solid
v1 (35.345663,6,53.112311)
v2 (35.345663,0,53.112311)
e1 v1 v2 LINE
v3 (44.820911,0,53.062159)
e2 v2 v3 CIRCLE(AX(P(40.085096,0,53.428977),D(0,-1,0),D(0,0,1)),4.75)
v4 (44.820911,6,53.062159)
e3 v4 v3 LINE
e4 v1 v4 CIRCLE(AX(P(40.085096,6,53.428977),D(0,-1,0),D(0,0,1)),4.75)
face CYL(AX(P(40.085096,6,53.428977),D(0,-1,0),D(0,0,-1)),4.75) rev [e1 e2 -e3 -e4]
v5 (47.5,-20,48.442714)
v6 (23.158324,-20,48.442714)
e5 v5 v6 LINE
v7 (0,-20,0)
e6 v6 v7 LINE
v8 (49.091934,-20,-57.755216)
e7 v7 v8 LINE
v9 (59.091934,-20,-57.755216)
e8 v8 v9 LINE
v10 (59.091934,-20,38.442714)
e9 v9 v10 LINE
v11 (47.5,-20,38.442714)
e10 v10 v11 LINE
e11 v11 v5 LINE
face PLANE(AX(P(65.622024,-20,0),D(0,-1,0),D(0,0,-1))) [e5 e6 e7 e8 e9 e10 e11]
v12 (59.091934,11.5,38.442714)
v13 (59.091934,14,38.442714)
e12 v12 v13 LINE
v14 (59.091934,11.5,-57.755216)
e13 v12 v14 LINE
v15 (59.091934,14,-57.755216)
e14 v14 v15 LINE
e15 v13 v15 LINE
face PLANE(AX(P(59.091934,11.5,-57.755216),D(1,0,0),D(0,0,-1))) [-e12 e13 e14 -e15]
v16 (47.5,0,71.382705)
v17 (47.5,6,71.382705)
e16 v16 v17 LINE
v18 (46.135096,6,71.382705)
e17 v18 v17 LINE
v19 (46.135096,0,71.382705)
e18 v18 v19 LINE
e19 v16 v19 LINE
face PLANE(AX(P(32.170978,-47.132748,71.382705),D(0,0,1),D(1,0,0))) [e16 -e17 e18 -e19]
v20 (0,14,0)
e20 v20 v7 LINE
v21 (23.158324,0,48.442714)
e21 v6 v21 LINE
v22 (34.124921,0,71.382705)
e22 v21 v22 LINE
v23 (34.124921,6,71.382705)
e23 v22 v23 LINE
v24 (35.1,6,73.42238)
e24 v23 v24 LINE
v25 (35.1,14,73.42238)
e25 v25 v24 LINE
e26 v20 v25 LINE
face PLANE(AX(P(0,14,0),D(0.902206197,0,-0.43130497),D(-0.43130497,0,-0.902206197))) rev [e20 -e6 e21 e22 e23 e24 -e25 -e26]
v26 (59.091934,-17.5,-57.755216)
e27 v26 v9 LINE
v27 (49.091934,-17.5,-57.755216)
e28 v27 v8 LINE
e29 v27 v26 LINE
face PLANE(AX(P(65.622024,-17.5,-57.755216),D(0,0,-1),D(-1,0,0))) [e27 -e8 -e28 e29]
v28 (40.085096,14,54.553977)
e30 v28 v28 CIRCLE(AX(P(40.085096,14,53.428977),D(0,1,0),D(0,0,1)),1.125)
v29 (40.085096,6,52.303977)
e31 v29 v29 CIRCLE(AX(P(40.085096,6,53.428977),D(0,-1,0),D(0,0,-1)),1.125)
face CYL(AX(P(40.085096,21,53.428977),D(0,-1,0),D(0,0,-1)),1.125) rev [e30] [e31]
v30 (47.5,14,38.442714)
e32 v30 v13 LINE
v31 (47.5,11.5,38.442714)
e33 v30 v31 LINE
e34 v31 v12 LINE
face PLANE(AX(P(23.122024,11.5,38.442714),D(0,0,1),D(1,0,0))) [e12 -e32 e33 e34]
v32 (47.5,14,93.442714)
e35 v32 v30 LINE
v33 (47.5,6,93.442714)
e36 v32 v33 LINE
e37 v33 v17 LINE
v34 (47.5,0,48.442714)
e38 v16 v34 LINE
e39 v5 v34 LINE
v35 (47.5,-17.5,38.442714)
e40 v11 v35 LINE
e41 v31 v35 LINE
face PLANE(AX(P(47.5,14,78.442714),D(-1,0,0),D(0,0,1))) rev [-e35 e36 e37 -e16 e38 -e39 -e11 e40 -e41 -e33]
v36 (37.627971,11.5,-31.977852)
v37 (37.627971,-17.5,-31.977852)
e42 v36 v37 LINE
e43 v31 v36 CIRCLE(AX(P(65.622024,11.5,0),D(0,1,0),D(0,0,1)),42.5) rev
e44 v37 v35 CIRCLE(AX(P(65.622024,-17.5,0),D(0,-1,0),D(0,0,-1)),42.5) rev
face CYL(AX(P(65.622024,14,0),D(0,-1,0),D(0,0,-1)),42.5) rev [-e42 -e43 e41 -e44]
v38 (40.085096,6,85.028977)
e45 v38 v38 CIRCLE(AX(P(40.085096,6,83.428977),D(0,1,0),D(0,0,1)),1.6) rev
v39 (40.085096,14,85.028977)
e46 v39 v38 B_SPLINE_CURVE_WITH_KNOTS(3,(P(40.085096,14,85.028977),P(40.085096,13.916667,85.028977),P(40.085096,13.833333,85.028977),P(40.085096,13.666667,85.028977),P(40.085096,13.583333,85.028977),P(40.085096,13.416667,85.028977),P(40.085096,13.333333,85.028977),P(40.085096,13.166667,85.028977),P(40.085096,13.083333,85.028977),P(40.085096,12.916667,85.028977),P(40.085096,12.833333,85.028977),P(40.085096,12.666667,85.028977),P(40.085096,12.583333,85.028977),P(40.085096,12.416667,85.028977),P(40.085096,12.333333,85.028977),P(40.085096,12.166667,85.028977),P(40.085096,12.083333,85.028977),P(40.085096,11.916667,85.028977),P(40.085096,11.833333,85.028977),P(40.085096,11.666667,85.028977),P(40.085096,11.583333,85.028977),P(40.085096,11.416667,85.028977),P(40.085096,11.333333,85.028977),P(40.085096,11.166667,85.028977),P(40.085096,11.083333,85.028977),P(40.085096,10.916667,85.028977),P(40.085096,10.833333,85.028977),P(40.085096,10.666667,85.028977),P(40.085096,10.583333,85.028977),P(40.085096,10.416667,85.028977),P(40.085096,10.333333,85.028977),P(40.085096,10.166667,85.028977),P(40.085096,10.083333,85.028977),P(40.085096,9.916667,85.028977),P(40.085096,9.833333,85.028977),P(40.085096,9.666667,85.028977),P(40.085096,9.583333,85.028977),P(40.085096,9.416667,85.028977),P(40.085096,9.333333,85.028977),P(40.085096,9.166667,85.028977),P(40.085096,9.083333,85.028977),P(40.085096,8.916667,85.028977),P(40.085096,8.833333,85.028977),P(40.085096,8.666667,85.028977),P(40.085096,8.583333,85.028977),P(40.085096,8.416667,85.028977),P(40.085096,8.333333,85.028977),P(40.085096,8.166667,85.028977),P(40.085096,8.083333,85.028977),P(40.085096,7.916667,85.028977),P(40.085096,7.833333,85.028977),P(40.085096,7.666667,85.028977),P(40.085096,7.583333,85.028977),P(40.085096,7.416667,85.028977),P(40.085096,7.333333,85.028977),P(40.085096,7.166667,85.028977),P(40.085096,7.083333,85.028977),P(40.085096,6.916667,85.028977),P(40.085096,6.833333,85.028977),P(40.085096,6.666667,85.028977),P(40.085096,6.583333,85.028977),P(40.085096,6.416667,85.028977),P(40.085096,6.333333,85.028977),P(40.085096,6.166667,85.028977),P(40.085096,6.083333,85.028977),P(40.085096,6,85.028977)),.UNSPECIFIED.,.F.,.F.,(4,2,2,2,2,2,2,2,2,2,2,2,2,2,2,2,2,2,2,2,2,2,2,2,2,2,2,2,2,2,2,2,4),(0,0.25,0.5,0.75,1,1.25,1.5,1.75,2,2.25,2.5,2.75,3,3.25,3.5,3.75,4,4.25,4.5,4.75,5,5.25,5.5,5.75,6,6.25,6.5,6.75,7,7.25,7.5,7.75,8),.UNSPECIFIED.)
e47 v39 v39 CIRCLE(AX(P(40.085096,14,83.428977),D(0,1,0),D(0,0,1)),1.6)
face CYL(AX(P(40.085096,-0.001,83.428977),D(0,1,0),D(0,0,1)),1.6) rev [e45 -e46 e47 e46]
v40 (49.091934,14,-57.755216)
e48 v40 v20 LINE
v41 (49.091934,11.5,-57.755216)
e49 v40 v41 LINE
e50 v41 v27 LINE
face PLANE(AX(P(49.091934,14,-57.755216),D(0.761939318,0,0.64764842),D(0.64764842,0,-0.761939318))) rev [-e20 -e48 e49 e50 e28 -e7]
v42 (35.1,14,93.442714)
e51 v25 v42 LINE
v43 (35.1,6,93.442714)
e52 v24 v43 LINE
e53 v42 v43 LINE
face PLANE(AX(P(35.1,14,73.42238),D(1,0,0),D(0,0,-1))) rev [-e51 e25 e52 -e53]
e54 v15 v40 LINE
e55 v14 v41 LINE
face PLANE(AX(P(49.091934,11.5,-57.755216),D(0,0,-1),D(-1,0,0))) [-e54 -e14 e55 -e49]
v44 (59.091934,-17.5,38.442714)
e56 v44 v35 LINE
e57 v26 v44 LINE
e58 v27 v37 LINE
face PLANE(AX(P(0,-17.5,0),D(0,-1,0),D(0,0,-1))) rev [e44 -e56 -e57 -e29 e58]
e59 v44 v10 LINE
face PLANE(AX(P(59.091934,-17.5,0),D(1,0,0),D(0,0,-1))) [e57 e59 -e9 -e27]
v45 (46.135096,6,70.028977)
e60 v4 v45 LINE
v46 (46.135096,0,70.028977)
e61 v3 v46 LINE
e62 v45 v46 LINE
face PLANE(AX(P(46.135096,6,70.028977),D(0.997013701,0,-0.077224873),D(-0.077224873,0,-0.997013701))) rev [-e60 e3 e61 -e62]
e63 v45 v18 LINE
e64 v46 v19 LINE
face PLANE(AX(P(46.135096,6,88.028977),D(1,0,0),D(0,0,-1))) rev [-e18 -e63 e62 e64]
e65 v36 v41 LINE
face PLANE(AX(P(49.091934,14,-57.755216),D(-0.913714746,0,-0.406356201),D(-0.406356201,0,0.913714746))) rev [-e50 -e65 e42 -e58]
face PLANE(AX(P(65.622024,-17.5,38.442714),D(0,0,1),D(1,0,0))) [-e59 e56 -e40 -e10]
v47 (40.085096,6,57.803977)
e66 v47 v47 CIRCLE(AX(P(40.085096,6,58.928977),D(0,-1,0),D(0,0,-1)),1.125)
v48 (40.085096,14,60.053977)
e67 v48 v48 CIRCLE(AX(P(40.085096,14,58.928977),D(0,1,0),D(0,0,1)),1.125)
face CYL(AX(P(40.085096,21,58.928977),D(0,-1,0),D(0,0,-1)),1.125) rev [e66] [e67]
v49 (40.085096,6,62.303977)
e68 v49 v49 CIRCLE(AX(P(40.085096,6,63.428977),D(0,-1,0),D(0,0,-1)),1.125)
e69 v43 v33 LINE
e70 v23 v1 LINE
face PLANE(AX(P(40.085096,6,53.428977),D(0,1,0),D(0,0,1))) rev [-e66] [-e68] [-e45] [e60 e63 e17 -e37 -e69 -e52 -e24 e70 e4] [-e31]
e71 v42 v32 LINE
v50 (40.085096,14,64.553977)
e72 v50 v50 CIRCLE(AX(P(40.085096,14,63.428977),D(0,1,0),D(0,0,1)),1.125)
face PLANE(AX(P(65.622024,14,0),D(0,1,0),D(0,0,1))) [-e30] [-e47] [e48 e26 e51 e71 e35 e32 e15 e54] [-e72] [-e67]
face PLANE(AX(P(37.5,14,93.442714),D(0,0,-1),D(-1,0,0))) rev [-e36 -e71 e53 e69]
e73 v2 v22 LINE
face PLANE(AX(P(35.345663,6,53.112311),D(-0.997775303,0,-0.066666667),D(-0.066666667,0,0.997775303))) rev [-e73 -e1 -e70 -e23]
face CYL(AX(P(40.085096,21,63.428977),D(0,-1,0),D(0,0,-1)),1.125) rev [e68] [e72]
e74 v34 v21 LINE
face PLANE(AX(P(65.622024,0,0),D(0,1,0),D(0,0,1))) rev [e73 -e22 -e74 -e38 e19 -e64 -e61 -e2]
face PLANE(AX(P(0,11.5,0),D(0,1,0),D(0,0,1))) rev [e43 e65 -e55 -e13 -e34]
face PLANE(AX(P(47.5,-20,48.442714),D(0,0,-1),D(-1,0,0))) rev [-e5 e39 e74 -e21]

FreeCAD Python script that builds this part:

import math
import FreeCAD as App
import Part
import Sketcher
from FreeCAD import Vector


def add_polygon(sketch, points):
    """Adds a closed chain of lines whose ends are joined by coincident constraints."""
    first, n = sketch.GeometryCount, len(points)
    for a, b in zip(points, points[1:] + points[:1]):
        sketch.addGeometry(Part.LineSegment(App.Vector(*a, 0), App.Vector(*b, 0)), False)
    for i in range(n):
        sketch.addConstraint(Sketcher.Constraint("Coincident", first + i, 2, first + (i + 1) % n, 1))

doc = App.newDocument("Part")
body = doc.addObject("PartDesign::Body", "Body")

# Sketch on XZ plane
sketch1 = doc.addObject("Sketcher::SketchObject", "Sketch")
body.addObject(sketch1)
sketch1.AttachmentSupport = (doc.XZ_Plane, [""])
sketch1.MapMode = "FlatFace"
sketch1.addGeometry(Part.ArcOfCircle(Part.Circle(Vector(66, 0, 0), Vector(0, 0, 1), 42), math.radians(115), math.radians(229)), False)
sketch1.addGeometry(Part.LineSegment(Vector(38, -32, 0), Vector(49, -58, 0)), False)
sketch1.addGeometry(Part.LineSegment(Vector(49, -58, 0), Vector(0, 0, 0)), False)
sketch1.addGeometry(Part.LineSegment(Vector(0, 0, 0), Vector(35, 73, 0)), False)
sketch1.addGeometry(Part.LineSegment(Vector(35, 73, 0), Vector(35, 93, 0)), False)
sketch1.addGeometry(Part.LineSegment(Vector(35, 93, 0), Vector(48, 93, 0)), False)
sketch1.addGeometry(Part.LineSegment(Vector(48, 93, 0), Vector(48, 38, 0)), False)
sketch1.addConstraint(Sketcher.Constraint("Coincident", 0, 2, 1, 1))
sketch1.addConstraint(Sketcher.Constraint("Coincident", 1, 2, 2, 1))
sketch1.addConstraint(Sketcher.Constraint("Coincident", 2, 2, 3, 1))
sketch1.addConstraint(Sketcher.Constraint("Coincident", 3, 2, 4, 1))
sketch1.addConstraint(Sketcher.Constraint("Coincident", 4, 2, 5, 1))
sketch1.addConstraint(Sketcher.Constraint("Coincident", 5, 2, 6, 1))
sketch1.addConstraint(Sketcher.Constraint("Coincident", 6, 2, 0, 1))
sketch1.addConstraint(Sketcher.Constraint("Vertical", 4))
sketch1.addConstraint(Sketcher.Constraint("Horizontal", 5))
sketch1.addConstraint(Sketcher.Constraint("Vertical", 6))
sketch1.addConstraint(Sketcher.Constraint("Coincident", 2, 2, -1, 1))
sketch1.addConstraint(Sketcher.Constraint("PointOnObject", 0, 3, -1))
sketch1.addConstraint(Sketcher.Constraint("Radius", 0, 42.5))
sketch1.addConstraint(Sketcher.Constraint("DistanceY", 6, 2, 6, 1, 55.0))
sketch1.addConstraint(Sketcher.Constraint("DistanceX", 5, 1, 5, 2, 12.4))
sketch1.addConstraint(Sketcher.Constraint("DistanceX", -1, 1, 3, 2, 35.1))
sketch1.addConstraint(Sketcher.Constraint("Distance", 1, 28.21161))
sketch1.addConstraint(Sketcher.Constraint("Distance", 3, 81.380931))
sketch1.addConstraint(Sketcher.Constraint("DistanceY", 4, 1, 4, 2, 20.020334))
sketch1.addConstraint(Sketcher.Constraint("DistanceX", -1, 1, 0, 2, 37.627971))
sketch1.addConstraint(Sketcher.Constraint("DistanceX", 1, 2, 0, 3, 16.53009))
pad1 = doc.addObject("PartDesign::Pad", "Pad")
body.addObject(pad1)
pad1.Profile = sketch1
pad1.Length = 14
pad1.Reversed = True

# Sketch on XZ plane
sketch2 = doc.addObject("Sketcher::SketchObject", "Sketch001")
body.addObject(sketch2)
sketch2.AttachmentSupport = (doc.XZ_Plane, [""])
sketch2.MapMode = "FlatFace"
sketch2.addGeometry(Part.LineSegment(Vector(36.2, 92.4, 0), Vector(33.3, 84.4, 0)), False)
sketch2.addGeometry(Part.LineSegment(Vector(33.3, 84.4, 0), Vector(35.3, 53.1, 0)), False)
sketch2.addGeometry(Part.ArcOfCircle(Part.Circle(Vector(40.1, 53.4, 0), Vector(0, 0, 1), 4.8), math.radians(-176), math.radians(-4)), False)
sketch2.addGeometry(Part.LineSegment(Vector(44.8, 53.1, 0), Vector(46.1, 70, 0)), False)
sketch2.addGeometry(Part.LineSegment(Vector(46.1, 70, 0), Vector(46.1, 88, 0)), False)
sketch2.addGeometry(Part.LineSegment(Vector(46.1, 88, 0), Vector(44.9, 92.4, 0)), False)
sketch2.addGeometry(Part.LineSegment(Vector(44.9, 92.4, 0), Vector(36.2, 92.4, 0)), False)
sketch2.addGeometry(Part.Circle(Vector(40.1, 83.4, 0), Vector(0, 0, 1), 4.1), False)
sketch2.addConstraint(Sketcher.Constraint("Coincident", 0, 2, 1, 1))
sketch2.addConstraint(Sketcher.Constraint("Tangent", 1, 2, 2, 1))
sketch2.addConstraint(Sketcher.Constraint("Tangent", 2, 2, 3, 1))
sketch2.addConstraint(Sketcher.Constraint("Coincident", 3, 2, 4, 1))
sketch2.addConstraint(Sketcher.Constraint("Coincident", 4, 2, 5, 1))
sketch2.addConstraint(Sketcher.Constraint("Coincident", 5, 2, 6, 1))
sketch2.addConstraint(Sketcher.Constraint("Coincident", 6, 2, 0, 1))
sketch2.addConstraint(Sketcher.Constraint("Vertical", 4))
sketch2.addConstraint(Sketcher.Constraint("Horizontal", 6))
sketch2.addConstraint(Sketcher.Constraint("Vertical", 2, 3, 7, 3))
sketch2.addConstraint(Sketcher.Constraint("Diameter", 7, 8.25))
sketch2.addConstraint(Sketcher.Constraint("DistanceY", 4, 1, 4, 2, 18.0))
sketch2.addConstraint(Sketcher.Constraint("Radius", 2, 4.75))
sketch2.addConstraint(Sketcher.Constraint("DistanceX", 6, 2, 6, 1, 8.7))
sketch2.addConstraint(Sketcher.Constraint("DistanceY", 2, 3, 7, 3, 30.0))
sketch2.addConstraint(Sketcher.Constraint("DistanceY", 7, 3, 5, 2, 9.0))
sketch2.addConstraint(Sketcher.Constraint("DistanceY", 3, 2, 7, 3, 13.4))
sketch2.addConstraint(Sketcher.Constraint("DistanceX", 7, 3, 5, 2, 4.8))
sketch2.addConstraint(Sketcher.Constraint("DistanceX", 7, 3, 3, 2, 6.05))
sketch2.addConstraint(Sketcher.Constraint("DistanceY", 1, 2, 0, 2, 31.290802))
sketch2.addConstraint(Sketcher.Constraint("Distance", 1, 31.36057))
sketch2.addConstraint(Sketcher.Constraint("DistanceX", -1, 1, 0, 2, 33.254959))
sketch2.addConstraint(Sketcher.Constraint("DistanceY", -1, 1, 1, 2, 53.112311))
pocket1 = doc.addObject("PartDesign::Pocket", "Pocket")
body.addObject(pocket1)
pocket1.Profile = sketch2
pocket1.Length = 6

# Sketch on XZ plane
sketch3 = doc.addObject("Sketcher::SketchObject", "Sketch002")
body.addObject(sketch3)
sketch3.AttachmentSupport = (doc.XZ_Plane, [""])
sketch3.MapMode = "FlatFace"
sketch3.AttachmentOffset = App.Placement(Vector(0, 0, -6), App.Rotation())
sketch3.addGeometry(Part.Circle(Vector(40.1, 63.4, 0), Vector(0, 0, 1), 1.1), False)
sketch3.addGeometry(Part.Circle(Vector(40.1, 58.9, 0), Vector(0, 0, 1), 1.1), False)
sketch3.addGeometry(Part.Circle(Vector(40.1, 53.4, 0), Vector(0, 0, 1), 1.1), False)
sketch3.addConstraint(Sketcher.Constraint("Equal", 0, 1))
sketch3.addConstraint(Sketcher.Constraint("Equal", 1, 2))
sketch3.addConstraint(Sketcher.Constraint("Vertical", 0, 3, 1, 3))
sketch3.addConstraint(Sketcher.Constraint("Vertical", 1, 3, 2, 3))
sketch3.addConstraint(Sketcher.Constraint("Diameter", 0, 2.25))
sketch3.addConstraint(Sketcher.Constraint("DistanceY", 2, 3, 0, 3, 10.0))
sketch3.addConstraint(Sketcher.Constraint("DistanceY", 1, 3, 0, 3, 4.5))
sketch3.addConstraint(Sketcher.Constraint("DistanceX", -1, 1, 0, 3, 40.085096))
sketch3.addConstraint(Sketcher.Constraint("DistanceY", -1, 1, 0, 3, 63.428977))
pocket2 = doc.addObject("PartDesign::Pocket", "Pocket001")
body.addObject(pocket2)
pocket2.Profile = sketch3
pocket2.Length = 15

# Sketch on XZ plane
sketch4 = doc.addObject("Sketcher::SketchObject", "Sketch003")
body.addObject(sketch4)
sketch4.AttachmentSupport = (doc.XZ_Plane, [""])
sketch4.MapMode = "FlatFace"
sketch4.AttachmentOffset = App.Placement(Vector(0, 0, -6), App.Rotation())
add_polygon(sketch4, [(32, 71), (58, 71), (58, 110), (31, 110)])  # lines 0-3
sketch4.addConstraint(Sketcher.Constraint("Horizontal", 0))
sketch4.addConstraint(Sketcher.Constraint("Vertical", 1))
sketch4.addConstraint(Sketcher.Constraint("Horizontal", 2))
sketch4.addConstraint(Sketcher.Constraint("DistanceX", 0, 1, 0, 2, 25.68962))
sketch4.addConstraint(Sketcher.Constraint("DistanceX", -1, 1, 0, 2, 57.860599))
sketch4.addConstraint(Sketcher.Constraint("Distance", 3, 38.73435))
sketch4.addConstraint(Sketcher.Constraint("DistanceX", 2, 2, 2, 1, 26.880558))
sketch4.addConstraint(Sketcher.Constraint("DistanceY", -1, 1, 0, 2, 71.382705))
pocket3 = doc.addObject("PartDesign::Pocket", "Pocket002")
body.addObject(pocket3)
pocket3.Profile = sketch4
pocket3.Length = 6
pocket3.Reversed = True

# Sketch on XZ plane
sketch5 = doc.addObject("Sketcher::SketchObject", "Sketch004")
body.addObject(sketch5)
sketch5.AttachmentSupport = (doc.XZ_Plane, [""])
sketch5.MapMode = "FlatFace"
sketch5.AttachmentOffset = App.Placement(Vector(0, 0, -14), App.Rotation())
sketch5.addGeometry(Part.Circle(Vector(40.1, 83.4, 0), Vector(0, 0, 1), 1.6), False)
sketch5.addConstraint(Sketcher.Constraint("Diameter", 0, 3.2))
sketch5.addConstraint(Sketcher.Constraint("DistanceX", -1, 1, 0, 3, 40.085096))
sketch5.addConstraint(Sketcher.Constraint("DistanceY", -1, 1, 0, 3, 83.428977))
pocket4 = doc.addObject("PartDesign::Pocket", "Pocket003")
body.addObject(pocket4)
pocket4.Profile = sketch5
pocket4.Type = "UpToFirst"
pocket4.Reversed = True

# Sketch on XZ plane
sketch6 = doc.addObject("Sketcher::SketchObject", "Sketch005")
body.addObject(sketch6)
sketch6.AttachmentSupport = (doc.XZ_Plane, [""])
sketch6.MapMode = "FlatFace"
sketch6.AttachmentOffset = App.Placement(Vector(0, 0, 20), App.Rotation())
sketch6.addGeometry(Part.LineSegment(Vector(49, -58, 0), Vector(38, -32, 0)), False)
sketch6.addGeometry(Part.ArcOfCircle(Part.Circle(Vector(66, 0, 0), Vector(0, 0, 1), 42), math.radians(115), math.radians(229)), False)
sketch6.addGeometry(Part.LineSegment(Vector(48, 38, 0), Vector(48, 48, 0)), False)
sketch6.addGeometry(Part.LineSegment(Vector(48, 48, 0), Vector(23, 48, 0)), False)
sketch6.addGeometry(Part.LineSegment(Vector(23, 48, 0), Vector(0, 0, 0)), False)
sketch6.addGeometry(Part.LineSegment(Vector(0, 0, 0), Vector(49, -58, 0)), False)
sketch6.addConstraint(Sketcher.Constraint("Coincident", 0, 2, 1, 2))
sketch6.addConstraint(Sketcher.Constraint("Coincident", 1, 1, 2, 1))
sketch6.addConstraint(Sketcher.Constraint("Coincident", 2, 2, 3, 1))
sketch6.addConstraint(Sketcher.Constraint("Coincident", 3, 2, 4, 1))
sketch6.addConstraint(Sketcher.Constraint("Coincident", 4, 2, 5, 1))
sketch6.addConstraint(Sketcher.Constraint("Coincident", 5, 2, 0, 1))
sketch6.addConstraint(Sketcher.Constraint("Vertical", 2))
sketch6.addConstraint(Sketcher.Constraint("Horizontal", 3))
sketch6.addConstraint(Sketcher.Constraint("Coincident", 4, 2, -1, 1))
sketch6.addConstraint(Sketcher.Constraint("PointOnObject", 1, 3, -1))
sketch6.addConstraint(Sketcher.Constraint("Radius", 1, 42.5))
sketch6.addConstraint(Sketcher.Constraint("DistanceY", 2, 1, 2, 2, 10.0))
sketch6.addConstraint(Sketcher.Constraint("DistanceX", -1, 1, 1, 1, 47.5))
sketch6.addConstraint(Sketcher.Constraint("DistanceX", 3, 2, 1, 3, 42.4637))
sketch6.addConstraint(Sketcher.Constraint("Distance", 0, 28.21161))
sketch6.addConstraint(Sketcher.Constraint("DistanceX", 3, 2, 3, 1, 24.341676))
sketch6.addConstraint(Sketcher.Constraint("DistanceX", -1, 1, 0, 2, 37.627971))
sketch6.addConstraint(Sketcher.Constraint("DistanceX", 5, 2, 1, 3, 16.53009))
pad2 = doc.addObject("PartDesign::Pad", "Pad001")
body.addObject(pad2)
pad2.Profile = sketch6
pad2.Length = 20
pad2.Reversed = True

# Sketch on XZ plane
sketch7 = doc.addObject("Sketcher::SketchObject", "Sketch006")
body.addObject(sketch7)
sketch7.AttachmentSupport = (doc.XZ_Plane, [""])
sketch7.MapMode = "FlatFace"
sketch7.AttachmentOffset = App.Placement(Vector(0, 0, -14), App.Rotation())
add_polygon(sketch7, [(49, -58), (23, -27), (23, 38), (59, 38), (59, -58)])  # lines 0-4
sketch7.addConstraint(Sketcher.Constraint("Vertical", 1))
sketch7.addConstraint(Sketcher.Constraint("Horizontal", 2))
sketch7.addConstraint(Sketcher.Constraint("Vertical", 3))
sketch7.addConstraint(Sketcher.Constraint("Horizontal", 4))
sketch7.addConstraint(Sketcher.Constraint("DistanceX", 4, 2, 4, 1, 10.0))
sketch7.addConstraint(Sketcher.Constraint("DistanceX", 2, 1, 2, 2, 35.96991))
sketch7.addConstraint(Sketcher.Constraint("DistanceY", 3, 2, 3, 1, 96.19793))
sketch7.addConstraint(Sketcher.Constraint("DistanceY", 1, 1, 1, 2, 65.645095))
sketch7.addConstraint(Sketcher.Constraint("DistanceY", 0, 2, -1, 1, 27.202381))
sketch7.addConstraint(Sketcher.Constraint("DistanceX", -1, 1, 0, 2, 23.122024))
pad3 = doc.addObject("PartDesign::Pad", "Pad002")
body.addObject(pad3)
pad3.Profile = sketch7
pad3.Length = 2.5

# Sketch on XZ plane
sketch8 = doc.addObject("Sketcher::SketchObject", "Sketch007")
body.addObject(sketch8)
sketch8.AttachmentSupport = (doc.XZ_Plane, [""])
sketch8.MapMode = "FlatFace"
sketch8.AttachmentOffset = App.Placement(Vector(0, 0, 20), App.Rotation())
add_polygon(sketch8, [(49, -58), (23, -27), (23, 38), (59, 38), (59, -58)])  # lines 0-4
sketch8.addConstraint(Sketcher.Constraint("Vertical", 1))
sketch8.addConstraint(Sketcher.Constraint("Horizontal", 2))
sketch8.addConstraint(Sketcher.Constraint("Vertical", 3))
sketch8.addConstraint(Sketcher.Constraint("Horizontal", 4))
sketch8.addConstraint(Sketcher.Constraint("DistanceX", 4, 2, 4, 1, 10.0))
sketch8.addConstraint(Sketcher.Constraint("DistanceX", 2, 1, 2, 2, 35.96991))
sketch8.addConstraint(Sketcher.Constraint("DistanceY", 3, 2, 3, 1, 96.19793))
sketch8.addConstraint(Sketcher.Constraint("DistanceY", 1, 1, 1, 2, 65.645095))
sketch8.addConstraint(Sketcher.Constraint("DistanceY", 0, 2, -1, 1, 27.202381))
sketch8.addConstraint(Sketcher.Constraint("DistanceX", -1, 1, 0, 2, 23.122024))
pad4 = doc.addObject("PartDesign::Pad", "Pad003")
body.addObject(pad4)
pad4.Profile = sketch8
pad4.Length = 2.5
pad4.Reversed = True

doc.recompute()
